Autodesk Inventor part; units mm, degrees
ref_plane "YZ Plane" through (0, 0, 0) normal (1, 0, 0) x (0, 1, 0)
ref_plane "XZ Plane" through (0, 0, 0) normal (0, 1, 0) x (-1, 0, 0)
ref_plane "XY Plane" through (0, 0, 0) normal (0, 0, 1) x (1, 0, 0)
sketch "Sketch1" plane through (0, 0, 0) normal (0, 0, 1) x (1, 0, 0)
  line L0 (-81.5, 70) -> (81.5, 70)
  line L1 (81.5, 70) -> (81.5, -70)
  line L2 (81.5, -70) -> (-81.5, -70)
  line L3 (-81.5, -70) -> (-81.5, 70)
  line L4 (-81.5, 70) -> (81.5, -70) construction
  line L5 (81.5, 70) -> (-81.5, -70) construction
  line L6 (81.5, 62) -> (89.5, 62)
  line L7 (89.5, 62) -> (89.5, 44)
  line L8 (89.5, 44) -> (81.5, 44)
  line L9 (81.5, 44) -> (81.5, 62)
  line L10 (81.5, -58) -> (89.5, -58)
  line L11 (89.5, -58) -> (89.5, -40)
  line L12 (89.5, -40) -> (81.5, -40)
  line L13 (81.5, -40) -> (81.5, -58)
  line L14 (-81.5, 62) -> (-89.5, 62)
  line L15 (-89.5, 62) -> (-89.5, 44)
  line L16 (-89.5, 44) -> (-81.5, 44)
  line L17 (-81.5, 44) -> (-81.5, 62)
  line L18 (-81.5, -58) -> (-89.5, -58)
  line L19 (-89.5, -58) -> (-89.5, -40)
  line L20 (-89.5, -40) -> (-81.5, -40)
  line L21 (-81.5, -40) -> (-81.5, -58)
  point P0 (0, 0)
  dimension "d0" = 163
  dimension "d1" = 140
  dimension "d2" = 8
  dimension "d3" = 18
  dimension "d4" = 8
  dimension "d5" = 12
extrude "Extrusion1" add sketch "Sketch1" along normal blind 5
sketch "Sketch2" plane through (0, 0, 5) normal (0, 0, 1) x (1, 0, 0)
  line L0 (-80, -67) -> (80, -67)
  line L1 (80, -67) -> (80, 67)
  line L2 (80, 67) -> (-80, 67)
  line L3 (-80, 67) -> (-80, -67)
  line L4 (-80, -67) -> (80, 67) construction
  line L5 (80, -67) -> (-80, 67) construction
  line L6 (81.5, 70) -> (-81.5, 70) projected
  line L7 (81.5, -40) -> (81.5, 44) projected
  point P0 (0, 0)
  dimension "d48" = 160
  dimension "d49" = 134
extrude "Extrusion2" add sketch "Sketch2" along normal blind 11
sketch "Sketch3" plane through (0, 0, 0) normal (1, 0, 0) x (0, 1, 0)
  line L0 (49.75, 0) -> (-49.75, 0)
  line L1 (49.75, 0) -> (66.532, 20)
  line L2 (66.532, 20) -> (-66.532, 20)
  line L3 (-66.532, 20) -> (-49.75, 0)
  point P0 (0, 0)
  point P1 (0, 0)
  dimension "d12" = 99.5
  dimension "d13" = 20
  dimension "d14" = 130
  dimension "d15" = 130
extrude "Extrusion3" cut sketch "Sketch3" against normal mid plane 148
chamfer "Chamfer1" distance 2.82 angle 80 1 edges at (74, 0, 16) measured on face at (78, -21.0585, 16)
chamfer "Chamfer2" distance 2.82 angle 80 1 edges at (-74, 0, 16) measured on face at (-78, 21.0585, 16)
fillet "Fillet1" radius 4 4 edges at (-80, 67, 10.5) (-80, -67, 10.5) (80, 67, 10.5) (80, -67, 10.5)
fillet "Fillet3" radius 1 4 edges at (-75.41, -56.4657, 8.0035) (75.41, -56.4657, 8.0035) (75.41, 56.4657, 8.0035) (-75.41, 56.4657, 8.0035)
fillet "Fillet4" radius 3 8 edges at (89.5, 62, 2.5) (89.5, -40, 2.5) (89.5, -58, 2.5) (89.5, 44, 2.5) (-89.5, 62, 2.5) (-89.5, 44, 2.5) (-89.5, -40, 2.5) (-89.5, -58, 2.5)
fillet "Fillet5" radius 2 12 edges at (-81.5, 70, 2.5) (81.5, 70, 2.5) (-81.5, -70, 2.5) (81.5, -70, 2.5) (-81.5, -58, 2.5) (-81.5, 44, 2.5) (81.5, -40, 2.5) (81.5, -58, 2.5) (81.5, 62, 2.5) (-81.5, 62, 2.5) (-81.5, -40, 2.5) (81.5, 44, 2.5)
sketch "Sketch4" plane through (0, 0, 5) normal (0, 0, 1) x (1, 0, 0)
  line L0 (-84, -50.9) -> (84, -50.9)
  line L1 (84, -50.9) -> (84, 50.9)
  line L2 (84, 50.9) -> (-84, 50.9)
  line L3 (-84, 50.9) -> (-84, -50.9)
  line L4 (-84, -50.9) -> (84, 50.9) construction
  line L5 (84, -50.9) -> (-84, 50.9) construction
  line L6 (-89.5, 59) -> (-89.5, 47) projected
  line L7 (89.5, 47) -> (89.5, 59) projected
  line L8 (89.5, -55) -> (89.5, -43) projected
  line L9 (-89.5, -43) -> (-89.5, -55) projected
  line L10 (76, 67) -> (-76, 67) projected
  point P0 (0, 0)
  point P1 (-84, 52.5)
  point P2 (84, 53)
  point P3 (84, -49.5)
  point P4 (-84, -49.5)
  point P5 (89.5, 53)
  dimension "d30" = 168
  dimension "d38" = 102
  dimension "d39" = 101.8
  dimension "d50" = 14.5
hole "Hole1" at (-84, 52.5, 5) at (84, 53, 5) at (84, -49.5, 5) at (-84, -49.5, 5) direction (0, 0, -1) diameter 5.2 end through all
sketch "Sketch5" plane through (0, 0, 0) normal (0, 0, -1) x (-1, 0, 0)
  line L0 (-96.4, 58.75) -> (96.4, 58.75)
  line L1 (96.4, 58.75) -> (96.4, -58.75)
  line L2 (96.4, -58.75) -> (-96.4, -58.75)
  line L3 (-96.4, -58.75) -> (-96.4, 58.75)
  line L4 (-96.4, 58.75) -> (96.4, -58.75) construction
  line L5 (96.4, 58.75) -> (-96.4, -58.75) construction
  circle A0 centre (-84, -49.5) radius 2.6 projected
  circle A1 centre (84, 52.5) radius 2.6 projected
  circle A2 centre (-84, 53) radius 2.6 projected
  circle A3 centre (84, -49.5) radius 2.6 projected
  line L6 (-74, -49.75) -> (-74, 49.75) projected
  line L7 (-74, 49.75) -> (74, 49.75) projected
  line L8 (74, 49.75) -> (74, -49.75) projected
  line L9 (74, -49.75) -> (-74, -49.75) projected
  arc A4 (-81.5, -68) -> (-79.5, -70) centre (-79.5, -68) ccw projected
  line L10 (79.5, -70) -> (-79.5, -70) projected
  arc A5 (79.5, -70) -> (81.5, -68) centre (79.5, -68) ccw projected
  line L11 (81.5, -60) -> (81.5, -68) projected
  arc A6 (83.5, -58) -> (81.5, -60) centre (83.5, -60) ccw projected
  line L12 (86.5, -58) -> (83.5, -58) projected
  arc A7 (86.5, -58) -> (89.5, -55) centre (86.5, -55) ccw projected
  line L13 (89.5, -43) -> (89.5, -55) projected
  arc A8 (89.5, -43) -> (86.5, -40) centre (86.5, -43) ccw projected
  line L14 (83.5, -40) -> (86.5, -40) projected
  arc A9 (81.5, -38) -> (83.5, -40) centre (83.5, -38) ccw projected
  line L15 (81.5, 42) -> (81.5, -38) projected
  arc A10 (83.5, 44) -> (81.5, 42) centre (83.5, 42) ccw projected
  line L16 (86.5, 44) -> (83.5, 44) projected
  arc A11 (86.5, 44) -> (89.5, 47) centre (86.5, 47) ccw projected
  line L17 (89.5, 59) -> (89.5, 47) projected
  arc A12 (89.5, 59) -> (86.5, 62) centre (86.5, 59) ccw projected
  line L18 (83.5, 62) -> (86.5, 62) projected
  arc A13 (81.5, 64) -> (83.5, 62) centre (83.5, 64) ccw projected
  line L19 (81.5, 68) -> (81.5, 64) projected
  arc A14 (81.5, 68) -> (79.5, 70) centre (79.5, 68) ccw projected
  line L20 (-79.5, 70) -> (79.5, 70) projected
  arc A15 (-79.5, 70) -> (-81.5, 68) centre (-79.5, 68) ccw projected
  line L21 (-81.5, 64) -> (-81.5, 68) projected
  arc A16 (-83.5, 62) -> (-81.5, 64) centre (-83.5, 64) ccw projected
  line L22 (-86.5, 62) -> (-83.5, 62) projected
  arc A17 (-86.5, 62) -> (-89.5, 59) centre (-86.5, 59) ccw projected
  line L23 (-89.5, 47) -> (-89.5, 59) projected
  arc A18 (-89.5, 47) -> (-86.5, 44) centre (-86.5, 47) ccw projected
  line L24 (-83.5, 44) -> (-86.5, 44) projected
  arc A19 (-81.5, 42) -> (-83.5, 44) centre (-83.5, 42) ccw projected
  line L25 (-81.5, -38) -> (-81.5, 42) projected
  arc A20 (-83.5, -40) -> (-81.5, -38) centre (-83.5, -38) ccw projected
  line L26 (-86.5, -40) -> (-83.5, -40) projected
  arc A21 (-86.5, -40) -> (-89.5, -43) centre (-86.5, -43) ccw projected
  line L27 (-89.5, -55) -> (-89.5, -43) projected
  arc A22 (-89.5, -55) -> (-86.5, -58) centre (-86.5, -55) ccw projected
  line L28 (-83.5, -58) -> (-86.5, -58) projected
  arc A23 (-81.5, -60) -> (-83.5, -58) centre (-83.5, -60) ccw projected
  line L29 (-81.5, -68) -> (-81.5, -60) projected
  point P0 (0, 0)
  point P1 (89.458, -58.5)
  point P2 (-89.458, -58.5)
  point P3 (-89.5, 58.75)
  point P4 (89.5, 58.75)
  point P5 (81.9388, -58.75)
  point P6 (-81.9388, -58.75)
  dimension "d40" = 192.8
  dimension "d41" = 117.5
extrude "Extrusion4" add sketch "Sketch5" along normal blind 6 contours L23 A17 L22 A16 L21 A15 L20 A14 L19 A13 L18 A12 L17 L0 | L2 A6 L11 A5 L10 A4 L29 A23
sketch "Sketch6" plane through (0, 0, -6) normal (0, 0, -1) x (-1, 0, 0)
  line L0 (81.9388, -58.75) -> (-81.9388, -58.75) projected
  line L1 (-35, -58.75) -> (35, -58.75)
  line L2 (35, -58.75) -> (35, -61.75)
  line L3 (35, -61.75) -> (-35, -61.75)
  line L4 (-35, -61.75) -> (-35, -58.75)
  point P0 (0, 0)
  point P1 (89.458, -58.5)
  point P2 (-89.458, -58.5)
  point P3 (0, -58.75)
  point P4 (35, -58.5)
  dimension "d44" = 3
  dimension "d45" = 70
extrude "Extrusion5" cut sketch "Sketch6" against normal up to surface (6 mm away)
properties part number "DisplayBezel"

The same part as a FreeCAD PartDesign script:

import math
import FreeCAD as App
import Part
import Sketcher
from FreeCAD import Vector
Q = App.Units.Quantity


def edges_at(feature, points):
    """Names of the edges that pass closest to the given points."""
    edges = feature.Shape.Edges
    near = lambda p: min(range(len(edges)), key=lambda i: edges[i].distToShape(Part.Vertex(*p))[0])
    return sorted({f"Edge{near(p) + 1}" for p in points})


def add_polygon(sketch, points):
    """Adds a closed chain of lines whose ends are joined by coincident constraints."""
    first, n = sketch.GeometryCount, len(points)
    for a, b in zip(points, points[1:] + points[:1]):
        sketch.addGeometry(Part.LineSegment(App.Vector(*a, 0), App.Vector(*b, 0)), False)
    for i in range(n):
        sketch.addConstraint(Sketcher.Constraint("Coincident", first + i, 2, first + (i + 1) % n, 1))

doc = App.newDocument("Part")
body = doc.addObject("PartDesign::Body", "Body")

sketch1 = body.newObject("Sketcher::SketchObject", "Sketch")
sketch1.AttachmentSupport = (doc.getObject("XY_Plane"), [""])
sketch1.MapMode = "FlatFace"
add_polygon(sketch1, [(82, 70), (-82, 70), (-82, 62), (-90, 62), (-90, 44), (-82, 44), (-82, -40), (-90, -40), (-90, -58), (-82, -58), (-82, -70), (82, -70), (82, -58), (90, -58), (90, -40), (82, -40), (82, 44), (90, 44), (90, 62), (82, 62)])
sketch1.addConstraint(Sketcher.Constraint("Horizontal", 0))
sketch1.addConstraint(Sketcher.Constraint("Vertical", 1))
sketch1.addConstraint(Sketcher.Constraint("Horizontal", 2))
sketch1.addConstraint(Sketcher.Constraint("Vertical", 3))
sketch1.addConstraint(Sketcher.Constraint("Horizontal", 4))
sketch1.addConstraint(Sketcher.Constraint("Vertical", 5))
sketch1.addConstraint(Sketcher.Constraint("Horizontal", 6))
sketch1.addConstraint(Sketcher.Constraint("Vertical", 7))
sketch1.addConstraint(Sketcher.Constraint("Horizontal", 8))
sketch1.addConstraint(Sketcher.Constraint("Vertical", 9))
sketch1.addConstraint(Sketcher.Constraint("Horizontal", 10))
sketch1.addConstraint(Sketcher.Constraint("Vertical", 11))
sketch1.addConstraint(Sketcher.Constraint("Horizontal", 12))
sketch1.addConstraint(Sketcher.Constraint("Vertical", 13))
sketch1.addConstraint(Sketcher.Constraint("Horizontal", 14))
sketch1.addConstraint(Sketcher.Constraint("Vertical", 15))
sketch1.addConstraint(Sketcher.Constraint("Horizontal", 16))
sketch1.addConstraint(Sketcher.Constraint("Vertical", 17))
sketch1.addConstraint(Sketcher.Constraint("Horizontal", 18))
sketch1.addConstraint(Sketcher.Constraint("Vertical", 19))
sketch1.addConstraint(Sketcher.Constraint("Symmetric", 0, 2, 10, 2, -1, 1))
sketch1.addConstraint(Sketcher.Constraint("Symmetric", 8, 2, 11, 2, -2))
sketch1.addConstraint(Sketcher.Constraint("Symmetric", 6, 2, 13, 2, -2))
sketch1.addConstraint(Sketcher.Constraint("Symmetric", 4, 2, 15, 2, -2))
sketch1.addConstraint(Sketcher.Constraint("Symmetric", 2, 2, 17, 2, -2))
sketch1.addConstraint(Sketcher.Constraint("Vertical", 1, 2, 4, 2))
sketch1.addConstraint(Sketcher.Constraint("Vertical", 3, 2, 6, 2))
sketch1.addConstraint(Sketcher.Constraint("Vertical", 15, 2, 18, 2))
sketch1.addConstraint(Sketcher.Constraint("Equal", 18, 1))
sketch1.addConstraint(Sketcher.Constraint("Equal", 3, 7))
sketch1.addConstraint(Sketcher.Constraint("DistanceX", 0, 2, 0, 1, Q("163 mm")))
sketch1.addConstraint(Sketcher.Constraint("DistanceX", 2, 2, 2, 1, Q("8 mm")))
sketch1.addConstraint(Sketcher.Constraint("DistanceY", 3, 2, 3, 1, Q("18 mm")))
sketch1.addConstraint(Sketcher.Constraint("DistanceY", 9, 2, 9, 1, Q("12 mm")))
sketch1.addConstraint(Sketcher.Constraint("DistanceY", 5, 2, 5, 1, Q("84 mm")))
pad1 = body.newObject("PartDesign::Pad", "Pad")
pad1.Profile = sketch1
pad1.Length = 5

sketch2 = body.newObject("Sketcher::SketchObject", "Sketch001")
sketch2.AttachmentSupport = (doc.getObject("XY_Plane"), [""])
sketch2.MapMode = "FlatFace"
sketch2.AttachmentOffset = App.Placement(Vector(0, 0, 5), App.Rotation())
add_polygon(sketch2, [(-80, 67), (-80, -67), (80, -67), (80, 67)])
sketch2.addConstraint(Sketcher.Constraint("Vertical", 0))
sketch2.addConstraint(Sketcher.Constraint("Horizontal", 1))
sketch2.addConstraint(Sketcher.Constraint("Vertical", 2))
sketch2.addConstraint(Sketcher.Constraint("Horizontal", 3))
sketch2.addConstraint(Sketcher.Constraint("Symmetric", 0, 2, 2, 2, -1, 1))
sketch2.addConstraint(Sketcher.Constraint("DistanceX", 1, 1, 1, 2, Q("160 mm")))
sketch2.addConstraint(Sketcher.Constraint("DistanceY", 0, 2, 0, 1, Q("134 mm")))
pad2 = body.newObject("PartDesign::Pad", "Pad001")
pad2.Profile = sketch2
pad2.Length = 11

sketch3 = body.newObject("Sketcher::SketchObject", "Sketch002")
sketch3.AttachmentSupport = (doc.getObject("YZ_Plane"), [""])
sketch3.MapMode = "FlatFace"
add_polygon(sketch3, [(-50, 0), (50, 0), (67, 20), (-67, 20)])
sketch3.addConstraint(Sketcher.Constraint("Horizontal", 0))
sketch3.addConstraint(Sketcher.Constraint("Horizontal", 2))
sketch3.addConstraint(Sketcher.Constraint("Symmetric", 0, 2, 3, 2, -1, 1))
sketch3.addConstraint(Sketcher.Constraint("Equal", 1, 3))
sketch3.addConstraint(Sketcher.Constraint("DistanceX", 0, 1, 0, 2, Q("99.5 mm")))
sketch3.addConstraint(Sketcher.Constraint("DistanceY", -1, 1, 1, 2, Q("20 mm")))
sketch3.addConstraint(Sketcher.Constraint("Angle", 1, Q("50 deg")))
pocket1 = body.newObject("PartDesign::Pocket", "Pocket")
pocket1.Profile = sketch3
pocket1.Length = 148
pocket1.Midplane = True
doc.recompute()

chamfer = body.newObject("PartDesign::Chamfer", "Chamfer")
chamfer.Base = (pocket1, edges_at(pocket1, [(74, 0, 16)]))
chamfer.ChamferType = "Distance and Angle"
chamfer.Size = 2.82
chamfer.Angle = 80
chamfer.FlipDirection = True
doc.recompute()

chamfer2 = body.newObject("PartDesign::Chamfer", "Chamfer001")
chamfer2.Base = (chamfer, edges_at(chamfer, [(-74, 0, 16)]))
chamfer2.ChamferType = "Distance and Angle"
chamfer2.Size = 2.82
chamfer2.Angle = 80
doc.recompute()

fillet = body.newObject("PartDesign::Fillet", "Fillet")
fillet.Base = (chamfer2, edges_at(chamfer2, [
    (-80, 67, 10.5),
    (-80, -67, 10.5),
    (80, 67, 10.5),
    (80, -67, 10.5),
]))
fillet.Radius = 4
doc.recompute()

fillet2 = body.newObject("PartDesign::Fillet", "Fillet001")
fillet2.Base = (fillet, edges_at(fillet, [
    (-75.41, -56.466, 8.004),
    (75.41, -56.466, 8.004),
    (75.41, 56.466, 8.004),
    (-75.41, 56.466, 8.004),
]))
fillet2.Radius = 1
doc.recompute()

fillet3 = body.newObject("PartDesign::Fillet", "Fillet002")
fillet3.Base = (fillet2, edges_at(fillet2, [
    (89.5, 62, 2.5),
    (89.5, -40, 2.5),
    (89.5, -58, 2.5),
    (89.5, 44, 2.5),
    (-89.5, 62, 2.5),
    (-89.5, 44, 2.5),
    (-89.5, -40, 2.5),
    (-89.5, -58, 2.5),
]))
fillet3.Radius = 3
doc.recompute()

fillet4 = body.newObject("PartDesign::Fillet", "Fillet003")
fillet4.Base = (fillet3, edges_at(fillet3, [
    (-81.5, 70, 2.5),
    (81.5, 70, 2.5),
    (-81.5, -70, 2.5),
    (81.5, -70, 2.5),
    (-81.5, -58, 2.5),
    (-81.5, 44, 2.5),
    (81.5, -40, 2.5),
    (81.5, -58, 2.5),
    (81.5, 62, 2.5),
    (-81.5, 62, 2.5),
    (-81.5, -40, 2.5),
    (81.5, 44, 2.5),
]))
fillet4.Radius = 2

sketch4 = body.newObject("Sketcher::SketchObject", "Sketch003")
sketch4.AttachmentSupport = (doc.getObject("XY_Plane"), [""])
sketch4.MapMode = "FlatFace"
sketch4.AttachmentOffset = App.Placement(Vector(0, 0, 5), App.Rotation())
sketch4.addGeometry(Part.Circle(Vector(-84, 52.5, 0), Vector(0, 0, 1), 2.6), False)
sketch4.addGeometry(Part.Circle(Vector(84, 53, 0), Vector(0, 0, 1), 2.6), False)
sketch4.addGeometry(Part.Circle(Vector(84, -49.5, 0), Vector(0, 0, 1), 2.6), False)
sketch4.addGeometry(Part.Circle(Vector(-84, -49.5, 0), Vector(0, 0, 1), 2.6), False)
sketch4.addConstraint(Sketcher.Constraint("Equal", 0, 1))
sketch4.addConstraint(Sketcher.Constraint("Equal", 1, 2))
sketch4.addConstraint(Sketcher.Constraint("Equal", 2, 3))
sketch4.addConstraint(Sketcher.Constraint("Symmetric", 2, 3, 3, 3, -2))
sketch4.addConstraint(Sketcher.Constraint("Vertical", 1, 3, 2, 3))
sketch4.addConstraint(Sketcher.Constraint("Vertical", 0, 3, 3, 3))
sketch4.addConstraint(Sketcher.Constraint("Diameter", 0, Q("5.2 mm")))
sketch4.addConstraint(Sketcher.Constraint("DistanceX", 0, 3, -1, 1, Q("84 mm")))
sketch4.addConstraint(Sketcher.Constraint("DistanceY", -1, 1, 1, 3, Q("53 mm")))
sketch4.addConstraint(Sketcher.Constraint("DistanceY", 2, 3, 0, 3, Q("102 mm")))
sketch4.addConstraint(Sketcher.Constraint("DistanceY", -1, 1, 0, 3, Q("52.5 mm")))
doc.recompute()
hole = body.newObject("PartDesign::Hole", "Hole")
hole.Profile = sketch4
hole.ThreadType = "None"
hole.Diameter = 5.2
hole.DepthType = "ThroughAll"

sketch5 = body.newObject("Sketcher::SketchObject", "Sketch004")
sketch5.AttachmentSupport = (doc.getObject("XY_Plane"), [""])
sketch5.MapMode = "FlatFace"
sketch5.addGeometry(Part.LineSegment(Vector(89.5, 59, 0), Vector(89.5, 58.75, 0)), False)
sketch5.addGeometry(Part.LineSegment(Vector(89.5, 58.75, 0), Vector(-89.5, 58.75, 0)), False)
sketch5.addGeometry(Part.LineSegment(Vector(-89.5, 58.75, 0), Vector(-89.5, 59, 0)), False)
sketch5.addGeometry(Part.ArcOfCircle(Part.Circle(Vector(-86.5, 59, 0), Vector(0, 0, 1), 3), math.radians(90), math.radians(180)), False)
sketch5.addGeometry(Part.LineSegment(Vector(-86.5, 62, 0), Vector(-83.5, 62, 0)), False)
sketch5.addGeometry(Part.ArcOfCircle(Part.Circle(Vector(-83.5, 64, 0), Vector(0, 0, 1), 2), math.radians(-90), math.radians(0)), False)
sketch5.addGeometry(Part.LineSegment(Vector(-81.5, 64, 0), Vector(-81.5, 68, 0)), False)
sketch5.addGeometry(Part.ArcOfCircle(Part.Circle(Vector(-79.5, 68, 0), Vector(0, 0, 1), 2), math.radians(90), math.radians(180)), False)
sketch5.addGeometry(Part.LineSegment(Vector(-79.5, 70, 0), Vector(79.5, 70, 0)), False)
sketch5.addGeometry(Part.ArcOfCircle(Part.Circle(Vector(79.5, 68, 0), Vector(0, 0, 1), 2), math.radians(0), math.radians(90)), False)
sketch5.addGeometry(Part.LineSegment(Vector(81.5, 68, 0), Vector(81.5, 64, 0)), False)
sketch5.addGeometry(Part.ArcOfCircle(Part.Circle(Vector(83.5, 64, 0), Vector(0, 0, 1), 2), math.radians(180), math.radians(270)), False)
sketch5.addGeometry(Part.LineSegment(Vector(83.5, 62, 0), Vector(86.5, 62, 0)), False)
sketch5.addGeometry(Part.ArcOfCircle(Part.Circle(Vector(86.5, 59, 0), Vector(0, 0, 1), 3), math.radians(0), math.radians(90)), False)
sketch5.addGeometry(Part.LineSegment(Vector(-81.94, -58.75, 0), Vector(81.94, -58.75, 0)), False)
sketch5.addGeometry(Part.ArcOfCircle(Part.Circle(Vector(83.5, -60, 0), Vector(0, 0, 1), 2), math.radians(141), math.radians(180)), False)
sketch5.addGeometry(Part.LineSegment(Vector(81.5, -60, 0), Vector(81.5, -68, 0)), False)
sketch5.addGeometry(Part.ArcOfCircle(Part.Circle(Vector(79.5, -68, 0), Vector(0, 0, 1), 2), math.radians(-90), math.radians(0)), False)
sketch5.addGeometry(Part.LineSegment(Vector(79.5, -70, 0), Vector(-79.5, -70, 0)), False)
sketch5.addGeometry(Part.ArcOfCircle(Part.Circle(Vector(-79.5, -68, 0), Vector(0, 0, 1), 2), math.radians(180), math.radians(270)), False)
sketch5.addGeometry(Part.LineSegment(Vector(-81.5, -68, 0), Vector(-81.5, -60, 0)), False)
sketch5.addGeometry(Part.ArcOfCircle(Part.Circle(Vector(-83.5, -60, 0), Vector(0, 0, 1), 2), math.radians(0), math.radians(39)), False)
sketch5.addConstraint(Sketcher.Constraint("Coincident", 0, 2, 1, 1))
sketch5.addConstraint(Sketcher.Constraint("Coincident", 1, 2, 2, 1))
sketch5.addConstraint(Sketcher.Constraint("Tangent", 2, 2, 3, 2))
sketch5.addConstraint(Sketcher.Constraint("Tangent", 3, 1, 4, 1))
sketch5.addConstraint(Sketcher.Constraint("Tangent", 4, 2, 5, 1))
sketch5.addConstraint(Sketcher.Constraint("Tangent", 5, 2, 6, 1))
sketch5.addConstraint(Sketcher.Constraint("Tangent", 6, 2, 7, 2))
sketch5.addConstraint(Sketcher.Constraint("Tangent", 7, 1, 8, 1))
sketch5.addConstraint(Sketcher.Constraint("Tangent", 8, 2, 9, 2))
sketch5.addConstraint(Sketcher.Constraint("Tangent", 9, 1, 10, 1))
sketch5.addConstraint(Sketcher.Constraint("Tangent", 10, 2, 11, 1))
sketch5.addConstraint(Sketcher.Constraint("Tangent", 11, 2, 12, 1))
sketch5.addConstraint(Sketcher.Constraint("Tangent", 12, 2, 13, 2))
sketch5.addConstraint(Sketcher.Constraint("Tangent", 13, 1, 0, 1))
sketch5.addConstraint(Sketcher.Constraint("Coincident", 14, 2, 15, 1))
sketch5.addConstraint(Sketcher.Constraint("Tangent", 15, 2, 16, 1))
sketch5.addConstraint(Sketcher.Constraint("Tangent", 16, 2, 17, 2))
sketch5.addConstraint(Sketcher.Constraint("Tangent", 17, 1, 18, 1))
sketch5.addConstraint(Sketcher.Constraint("Tangent", 18, 2, 19, 2))
sketch5.addConstraint(Sketcher.Constraint("Tangent", 19, 1, 20, 1))
sketch5.addConstraint(Sketcher.Constraint("Tangent", 20, 2, 21, 1))
sketch5.addConstraint(Sketcher.Constraint("Coincident", 21, 2, 14, 1))
sketch5.addConstraint(Sketcher.Constraint("Vertical", 0))
sketch5.addConstraint(Sketcher.Constraint("Horizontal", 1))
sketch5.addConstraint(Sketcher.Constraint("Vertical", 2))
sketch5.addConstraint(Sketcher.Constraint("Horizontal", 4))
sketch5.addConstraint(Sketcher.Constraint("Vertical", 6))
sketch5.addConstraint(Sketcher.Constraint("Horizontal", 8))
sketch5.addConstraint(Sketcher.Constraint("Vertical", 10))
sketch5.addConstraint(Sketcher.Constraint("Horizontal", 12))
sketch5.addConstraint(Sketcher.Constraint("Horizontal", 14))
sketch5.addConstraint(Sketcher.Constraint("Vertical", 16))
sketch5.addConstraint(Sketcher.Constraint("Horizontal", 18))
sketch5.addConstraint(Sketcher.Constraint("Vertical", 20))
sketch5.addConstraint(Sketcher.Constraint("Equal", 5, 7))
sketch5.addConstraint(Sketcher.Constraint("Equal", 7, 9))
sketch5.addConstraint(Sketcher.Constraint("Equal", 9, 11))
sketch5.addConstraint(Sketcher.Constraint("Equal", 3, 13))
sketch5.addConstraint(Sketcher.Constraint("Equal", 11, 15))
sketch5.addConstraint(Sketcher.Constraint("Equal", 15, 17))
sketch5.addConstraint(Sketcher.Constraint("Equal", 17, 19))
sketch5.addConstraint(Sketcher.Constraint("Equal", 19, 21))
sketch5.addConstraint(Sketcher.Constraint("Symmetric", 7, 3, 17, 3, -1, 1))
sketch5.addConstraint(Sketcher.Constraint("Symmetric", 5, 3, 11, 3, -2))
sketch5.addConstraint(Sketcher.Constraint("Symmetric", 15, 3, 21, 3, -2))
sketch5.addConstraint(Sketcher.Constraint("Equal", 4, 12))
sketch5.addConstraint(Sketcher.Constraint("Radius", 3, Q("3 mm")))
sketch5.addConstraint(Sketcher.Constraint("Radius", 5, Q("2 mm")))
sketch5.addConstraint(Sketcher.Constraint("DistanceY", 14, 2, 0, 2, Q("117.5 mm")))
sketch5.addConstraint(Sketcher.Constraint("DistanceX", 1, 2, 1, 1, Q("179 mm")))
sketch5.addConstraint(Sketcher.Constraint("DistanceX", 4, 1, 4, 2, Q("3 mm")))
sketch5.addConstraint(Sketcher.Constraint("DistanceY", 6, 1, 6, 2, Q("4 mm")))
sketch5.addConstraint(Sketcher.Constraint("DistanceY", 16, 2, 16, 1, Q("8 mm")))
sketch5.addConstraint(Sketcher.Constraint("DistanceY", -1, 1, 3, 3, Q("59 mm")))
sketch5.addConstraint(Sketcher.Constraint("DistanceY", 0, 2, 0, 1, Q("0.25 mm")))
pad3 = body.newObject("PartDesign::Pad", "Pad002")
pad3.Profile = sketch5
pad3.Length = 6
pad3.Reversed = True

sketch6 = body.newObject("Sketcher::SketchObject", "Sketch005")
sketch6.AttachmentSupport = (doc.getObject("XY_Plane"), [""])
sketch6.MapMode = "FlatFace"
sketch6.AttachmentOffset = App.Placement(Vector(0, 0, -6), App.Rotation())
add_polygon(sketch6, [(-35, -61.8), (-35, -58.8), (35, -58.8), (35, -61.8)])
sketch6.addConstraint(Sketcher.Constraint("Vertical", 0))
sketch6.addConstraint(Sketcher.Constraint("Horizontal", 1))
sketch6.addConstraint(Sketcher.Constraint("Vertical", 2))
sketch6.addConstraint(Sketcher.Constraint("Horizontal", 3))
sketch6.addConstraint(Sketcher.Constraint("DistanceX", 1, 1, 1, 2, Q("70 mm")))
sketch6.addConstraint(Sketcher.Constraint("DistanceY", 0, 1, 0, 2, Q("3 mm")))
sketch6.addConstraint(Sketcher.Constraint("DistanceX", 0, 2, -1, 1, Q("35 mm")))
sketch6.addConstraint(Sketcher.Constraint("DistanceY", 0, 2, -1, 1, Q("58.75 mm")))
pocket2 = body.newObject("PartDesign::Pocket", "Pocket001")
pocket2.Profile = sketch6
pocket2.Length = 6
pocket2.Reversed = True

doc.recompute()
